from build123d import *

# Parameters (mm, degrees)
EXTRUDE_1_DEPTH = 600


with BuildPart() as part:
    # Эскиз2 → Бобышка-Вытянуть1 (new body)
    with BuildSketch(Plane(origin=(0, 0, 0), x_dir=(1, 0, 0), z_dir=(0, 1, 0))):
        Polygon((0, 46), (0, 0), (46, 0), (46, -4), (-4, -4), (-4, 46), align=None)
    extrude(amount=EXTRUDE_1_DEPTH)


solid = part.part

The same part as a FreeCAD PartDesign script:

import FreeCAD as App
import Part
import Sketcher
from FreeCAD import Vector
Q = App.Units.Quantity


def add_polygon(sketch, points):
    """Adds a closed chain of lines whose ends are joined by coincident constraints."""
    first, n = sketch.GeometryCount, len(points)
    for a, b in zip(points, points[1:] + points[:1]):
        sketch.addGeometry(Part.LineSegment(App.Vector(*a, 0), App.Vector(*b, 0)), False)
    for i in range(n):
        sketch.addConstraint(Sketcher.Constraint("Coincident", first + i, 2, first + (i + 1) % n, 1))

doc = App.newDocument("Part")
params = doc.addObject("Spreadsheet::Sheet", "Params")
for row, (alias, value) in enumerate([
    ("sketch1_width", "4 mm"),
    ("sketch1_width2", "50 mm"),
    ("pad1_length", "600 mm"),
], start=1):
    params.set(f"A{row}", alias)
    params.set(f"B{row}", "=" + value)
    params.setAlias(f"B{row}", alias)

body = doc.addObject("PartDesign::Body", "Body")

# Sketch on XZ plane
sketch1 = body.newObject("Sketcher::SketchObject", "Sketch")
sketch1.AttachmentSupport = (doc.getObject("XZ_Plane"), [""])
sketch1.MapMode = "FlatFace"
add_polygon(sketch1, [(0, 0), (0, -46), (-4, -46), (-4, 4), (46, 4), (46, 0)])  # lines 0-5
sketch1.addConstraint(Sketcher.Constraint("Vertical", 0))
sketch1.addConstraint(Sketcher.Constraint("Horizontal", 1))
sketch1.addConstraint(Sketcher.Constraint("Vertical", 2))
sketch1.addConstraint(Sketcher.Constraint("Horizontal", 3))
sketch1.addConstraint(Sketcher.Constraint("Vertical", 4))
sketch1.addConstraint(Sketcher.Constraint("Horizontal", 5))
sketch1.addConstraint(Sketcher.Constraint("Coincident", 5, 2, -1, 1))
sketch1.addConstraint(Sketcher.Constraint("Equal", 5, 0))
sketch1.addConstraint(Sketcher.Constraint("Equal", 3, 2))
sketch1.addConstraint(Sketcher.Constraint("DistanceX", 1, 2, 1, 1, Q("4 mm")))
sketch1.addConstraint(Sketcher.Constraint("DistanceX", 3, 1, 3, 2, Q("50 mm")))
sketch1.setExpression("Constraints[15]", "Params.sketch1_width")
sketch1.setExpression("Constraints[16]", "Params.sketch1_width2")
pad1 = body.newObject("PartDesign::Pad", "Pad")
pad1.Profile = sketch1
pad1.setExpression("Length", "Params.pad1_length")
pad1.Reversed = True

doc.recompute()
